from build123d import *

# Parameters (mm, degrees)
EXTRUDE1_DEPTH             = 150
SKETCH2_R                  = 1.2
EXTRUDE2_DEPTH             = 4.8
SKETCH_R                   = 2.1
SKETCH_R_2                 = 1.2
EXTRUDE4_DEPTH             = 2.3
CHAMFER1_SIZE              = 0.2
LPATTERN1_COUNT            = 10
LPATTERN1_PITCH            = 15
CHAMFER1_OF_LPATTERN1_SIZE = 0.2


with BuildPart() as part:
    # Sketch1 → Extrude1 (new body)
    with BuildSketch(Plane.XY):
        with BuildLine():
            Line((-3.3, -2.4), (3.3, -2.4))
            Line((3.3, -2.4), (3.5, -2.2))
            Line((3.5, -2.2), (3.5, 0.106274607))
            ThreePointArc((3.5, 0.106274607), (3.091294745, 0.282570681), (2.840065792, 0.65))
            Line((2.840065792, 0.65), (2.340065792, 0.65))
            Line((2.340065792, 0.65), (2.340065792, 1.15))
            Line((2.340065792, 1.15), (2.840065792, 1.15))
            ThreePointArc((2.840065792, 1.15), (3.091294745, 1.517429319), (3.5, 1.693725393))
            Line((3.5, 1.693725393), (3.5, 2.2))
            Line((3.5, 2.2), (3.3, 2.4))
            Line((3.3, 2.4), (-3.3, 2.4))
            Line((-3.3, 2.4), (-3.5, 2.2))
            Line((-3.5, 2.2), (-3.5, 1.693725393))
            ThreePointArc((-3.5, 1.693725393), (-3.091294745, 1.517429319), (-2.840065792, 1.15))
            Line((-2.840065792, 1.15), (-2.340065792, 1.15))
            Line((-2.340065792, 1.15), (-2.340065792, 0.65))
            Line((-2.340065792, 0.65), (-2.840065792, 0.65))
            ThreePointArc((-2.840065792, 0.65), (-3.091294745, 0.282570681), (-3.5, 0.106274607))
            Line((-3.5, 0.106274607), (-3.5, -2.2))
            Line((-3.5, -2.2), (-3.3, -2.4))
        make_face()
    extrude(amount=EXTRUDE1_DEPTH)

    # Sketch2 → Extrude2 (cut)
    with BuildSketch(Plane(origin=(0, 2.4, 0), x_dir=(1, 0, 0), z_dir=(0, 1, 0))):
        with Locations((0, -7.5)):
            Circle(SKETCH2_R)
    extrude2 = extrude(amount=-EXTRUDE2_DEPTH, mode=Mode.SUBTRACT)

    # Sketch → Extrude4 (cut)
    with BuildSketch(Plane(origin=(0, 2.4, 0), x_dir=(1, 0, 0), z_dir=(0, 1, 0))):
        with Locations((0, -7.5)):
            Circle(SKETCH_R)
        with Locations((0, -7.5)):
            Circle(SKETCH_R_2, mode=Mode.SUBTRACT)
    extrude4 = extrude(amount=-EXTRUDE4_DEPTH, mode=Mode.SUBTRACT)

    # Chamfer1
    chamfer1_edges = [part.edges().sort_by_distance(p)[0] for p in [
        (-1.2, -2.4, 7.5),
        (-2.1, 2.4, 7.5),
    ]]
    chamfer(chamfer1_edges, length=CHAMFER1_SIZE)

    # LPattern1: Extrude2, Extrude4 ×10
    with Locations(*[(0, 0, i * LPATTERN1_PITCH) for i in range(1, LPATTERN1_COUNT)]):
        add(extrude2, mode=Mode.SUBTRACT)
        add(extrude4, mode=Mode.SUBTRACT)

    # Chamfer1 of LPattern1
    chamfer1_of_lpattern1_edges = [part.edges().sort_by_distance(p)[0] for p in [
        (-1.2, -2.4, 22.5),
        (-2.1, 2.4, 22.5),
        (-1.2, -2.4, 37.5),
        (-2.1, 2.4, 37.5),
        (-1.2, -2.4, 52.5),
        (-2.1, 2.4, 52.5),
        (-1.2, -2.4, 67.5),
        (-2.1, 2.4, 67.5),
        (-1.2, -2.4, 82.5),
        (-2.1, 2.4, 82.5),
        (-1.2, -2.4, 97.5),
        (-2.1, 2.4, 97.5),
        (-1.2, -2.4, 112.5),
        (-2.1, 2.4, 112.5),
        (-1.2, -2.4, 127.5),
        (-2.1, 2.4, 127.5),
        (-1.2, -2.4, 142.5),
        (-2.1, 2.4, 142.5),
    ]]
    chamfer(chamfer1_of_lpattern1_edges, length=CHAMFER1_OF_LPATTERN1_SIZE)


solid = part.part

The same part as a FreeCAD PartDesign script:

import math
import FreeCAD as App
import Part
import Sketcher
Q = App.Units.Quantity


def edges_at(feature, points):
    """Names of the edges that pass closest to the given points."""
    edges = feature.Shape.Edges
    near = lambda p: min(range(len(edges)), key=lambda i: edges[i].distToShape(Part.Vertex(*p))[0])
    return sorted({f"Edge{near(p) + 1}" for p in points})

doc = App.newDocument("Part")
body = doc.addObject("PartDesign::Body", "Body")

# Sketch on XY plane
sketch1 = body.newObject("Sketcher::SketchObject", "Sketch")
sketch1.AttachmentSupport = (doc.getObject("XY_Plane"), [""])
sketch1.MapMode = "FlatFace"
sketch1.addGeometry([
    Part.LineSegment(App.Vector(-3.3, -2.4, 0), App.Vector(3.3, -2.4, 0)),  # 0
    Part.LineSegment(App.Vector(3.3, -2.4, 0), App.Vector(3.5, -2.2, 0)),  # 1
    Part.LineSegment(App.Vector(3.5, -2.2, 0), App.Vector(3.5, 0.11, 0)),  # 2
    Part.ArcOfCircle(Part.Circle(App.Vector(3.6, 0.9, 0), App.Vector(0, 0, 1), 0.8), math.radians(-162), math.radians(-97)),  # 3
    Part.LineSegment(App.Vector(2.84, 0.65, 0), App.Vector(2.34, 0.65, 0)),  # 4
    Part.LineSegment(App.Vector(2.34, 0.65, 0), App.Vector(2.34, 1.15, 0)),  # 5
    Part.LineSegment(App.Vector(2.34, 1.15, 0), App.Vector(2.84, 1.15, 0)),  # 6
    Part.ArcOfCircle(Part.Circle(App.Vector(3.6, 0.9, 0), App.Vector(0, 0, 1), 0.8), math.radians(97), math.radians(162)),  # 7
    Part.LineSegment(App.Vector(3.5, 1.69, 0), App.Vector(3.5, 2.2, 0)),  # 8
    Part.LineSegment(App.Vector(3.5, 2.2, 0), App.Vector(3.3, 2.4, 0)),  # 9
    Part.LineSegment(App.Vector(3.3, 2.4, 0), App.Vector(-3.3, 2.4, 0)),  # 10
    Part.LineSegment(App.Vector(-3.3, 2.4, 0), App.Vector(-3.5, 2.2, 0)),  # 11
    Part.LineSegment(App.Vector(-3.5, 2.2, 0), App.Vector(-3.5, 1.69, 0)),  # 12
    Part.ArcOfCircle(Part.Circle(App.Vector(-3.6, 0.9, 0), App.Vector(0, 0, 1), 0.8), math.radians(18), math.radians(83)),  # 13
    Part.LineSegment(App.Vector(-2.84, 1.15, 0), App.Vector(-2.34, 1.15, 0)),  # 14
    Part.LineSegment(App.Vector(-2.34, 1.15, 0), App.Vector(-2.34, 0.65, 0)),  # 15
    Part.LineSegment(App.Vector(-2.34, 0.65, 0), App.Vector(-2.84, 0.65, 0)),  # 16
    Part.ArcOfCircle(Part.Circle(App.Vector(-3.6, 0.9, 0), App.Vector(0, 0, 1), 0.8), math.radians(-83), math.radians(-18)),  # 17
    Part.LineSegment(App.Vector(-3.5, 0.11, 0), App.Vector(-3.5, -2.2, 0)),  # 18
    Part.LineSegment(App.Vector(-3.5, -2.2, 0), App.Vector(-3.3, -2.4, 0)),  # 19
], False)
sketch1.addConstraint([
    Sketcher.Constraint("Coincident", 0, 2, 1, 1),
    Sketcher.Constraint("Coincident", 1, 2, 2, 1),
    Sketcher.Constraint("Coincident", 2, 2, 3, 2),
    Sketcher.Constraint("Coincident", 3, 1, 4, 1),
    Sketcher.Constraint("Coincident", 4, 2, 5, 1),
    Sketcher.Constraint("Coincident", 5, 2, 6, 1),
    Sketcher.Constraint("Coincident", 6, 2, 7, 2),
    Sketcher.Constraint("Coincident", 7, 1, 8, 1),
    Sketcher.Constraint("Coincident", 8, 2, 9, 1),
    Sketcher.Constraint("Coincident", 9, 2, 10, 1),
    Sketcher.Constraint("Coincident", 10, 2, 11, 1),
    Sketcher.Constraint("Coincident", 11, 2, 12, 1),
    Sketcher.Constraint("Coincident", 12, 2, 13, 2),
    Sketcher.Constraint("Coincident", 13, 1, 14, 1),
    Sketcher.Constraint("Coincident", 14, 2, 15, 1),
    Sketcher.Constraint("Coincident", 15, 2, 16, 1),
    Sketcher.Constraint("Coincident", 16, 2, 17, 2),
    Sketcher.Constraint("Coincident", 17, 1, 18, 1),
    Sketcher.Constraint("Coincident", 18, 2, 19, 1),
    Sketcher.Constraint("Coincident", 19, 2, 0, 1),
    Sketcher.Constraint("Horizontal", 0),
    Sketcher.Constraint("Vertical", 2),
    Sketcher.Constraint("Horizontal", 4),
    Sketcher.Constraint("Vertical", 5),
    Sketcher.Constraint("Horizontal", 6),
    Sketcher.Constraint("Vertical", 8),
    Sketcher.Constraint("Horizontal", 10),
    Sketcher.Constraint("Vertical", 12),
    Sketcher.Constraint("Horizontal", 14),
    Sketcher.Constraint("Vertical", 15),
    Sketcher.Constraint("Horizontal", 16),
    Sketcher.Constraint("Vertical", 18),
    Sketcher.Constraint("Coincident", 7, 3, 3, 3),
    Sketcher.Constraint("Coincident", 17, 3, 13, 3),
    Sketcher.Constraint("Equal", 3, 7),
    Sketcher.Constraint("Equal", 7, 13),
    Sketcher.Constraint("Equal", 13, 17),
    Sketcher.Constraint("Symmetric", 0, 2, 10, 2, -1, 1),
    Sketcher.Constraint("Symmetric", 1, 2, 11, 2, -1, 1),
    Sketcher.Constraint("Symmetric", 8, 2, 18, 2, -1, 1),
    Sketcher.Constraint("Symmetric", 3, 3, 13, 3, -2),
    Sketcher.Constraint("Symmetric", 8, 2, 11, 2, -2),
    Sketcher.Constraint("Symmetric", 5, 2, 14, 2, -2),
    Sketcher.Constraint("Perpendicular", 1, 9),
    Sketcher.Constraint("Perpendicular", 11, 19),
    Sketcher.Constraint("Horizontal", 4, 2, 15, 2),
    Sketcher.Constraint("Vertical", 3, 1, 6, 2),
    Sketcher.Constraint("Vertical", 0, 2, 9, 2),
    Sketcher.Constraint("Equal", 16, 5),
    Sketcher.Constraint("Radius", 3, Q("0.8 mm")),
    Sketcher.Constraint("DistanceX", 0, 1, 0, 2, Q("6.6 mm")),
    Sketcher.Constraint("DistanceX", 4, 2, 4, 1, Q("0.5 mm")),
    Sketcher.Constraint("DistanceX", -1, 1, 3, 3, Q("3.6 mm")),
    Sketcher.Constraint("DistanceY", -1, 1, 3, 3, Q("0.9 mm")),
    Sketcher.Constraint("DistanceY", 0, 2, -1, 1, Q("2.4 mm")),
    Sketcher.Constraint("DistanceX", -1, 1, 1, 2, Q("3.5 mm")),
])
pad1 = body.newObject("PartDesign::Pad", "Pad")
pad1.Profile = sketch1
pad1.Length = 150

# Sketch on XZ plane
sketch2 = body.newObject("Sketcher::SketchObject", "Sketch001")
sketch2.AttachmentSupport = (doc.getObject("XZ_Plane"), [""])
sketch2.MapMode = "FlatFace"
sketch2.AttachmentOffset = App.Placement(App.Vector(0, 0, -2.4), App.Rotation())
sketch2.addGeometry(Part.Circle(App.Vector(0, 7.5, 0), App.Vector(0, 0, 1), 1.2), False)
sketch2.addConstraint([
    Sketcher.Constraint("PointOnObject", 0, 3, -2),
    Sketcher.Constraint("Diameter", 0, Q("2.4 mm")),
    Sketcher.Constraint("DistanceY", -1, 1, 0, 3, Q("7.5 mm")),
])
pocket1 = body.newObject("PartDesign::Pocket", "Pocket")
pocket1.Profile = sketch2
pocket1.Length = 4.8
pocket1.Reversed = True

# Sketch on XZ plane
sketch3 = body.newObject("Sketcher::SketchObject", "Sketch002")
sketch3.AttachmentSupport = (doc.getObject("XZ_Plane"), [""])
sketch3.MapMode = "FlatFace"
sketch3.AttachmentOffset = App.Placement(App.Vector(0, 0, -2.4), App.Rotation())
sketch3.addGeometry([
    Part.Circle(App.Vector(0, 7.5, 0), App.Vector(0, 0, 1), 2.1),
    Part.Circle(App.Vector(0, 7.5, 0), App.Vector(0, 0, 1), 1.2),
], False)
sketch3.addConstraint([
    Sketcher.Constraint("Coincident", 1, 3, 0, 3),
    Sketcher.Constraint("PointOnObject", 0, 3, -2),
    Sketcher.Constraint("Diameter", 0, Q("4.2 mm")),
    Sketcher.Constraint("Diameter", 1, Q("2.4 mm")),
    Sketcher.Constraint("DistanceY", -1, 1, 0, 3, Q("7.5 mm")),
])
pocket2 = body.newObject("PartDesign::Pocket", "Pocket001")
pocket2.Profile = sketch3
pocket2.Length = 2.3
pocket2.Reversed = True
doc.recompute()

chamfer = body.newObject("PartDesign::Chamfer", "Chamfer")
chamfer.Base = (pocket2, edges_at(pocket2, [(-1.2, -2.4, 7.5), (-2.1, 2.4, 7.5)]))
chamfer.Size = 0.2
doc.recompute()

linearpattern = body.newObject("PartDesign::LinearPattern", "LinearPattern")
linearpattern.Originals = [pocket1, pocket2]
linearpattern.Direction = (doc.getObject("Z_Axis"), [""])
linearpattern.Mode = "offset"
linearpattern.Offset = 15
linearpattern.Occurrences = 10
body.Tip = linearpattern
doc.recompute()

chamfer2 = body.newObject("PartDesign::Chamfer", "Chamfer001")
chamfer2.Base = (linearpattern, edges_at(linearpattern, [
    (-1.2, -2.4, 22.5),
    (-2.1, 2.4, 22.5),
    (-1.2, -2.4, 37.5),
    (-2.1, 2.4, 37.5),
    (-1.2, -2.4, 52.5),
    (-2.1, 2.4, 52.5),
    (-1.2, -2.4, 67.5),
    (-2.1, 2.4, 67.5),
    (-1.2, -2.4, 82.5),
    (-2.1, 2.4, 82.5),
    (-1.2, -2.4, 97.5),
    (-2.1, 2.4, 97.5),
    (-1.2, -2.4, 112.5),
    (-2.1, 2.4, 112.5),
    (-1.2, -2.4, 127.5),
    (-2.1, 2.4, 127.5),
    (-1.2, -2.4, 142.5),
    (-2.1, 2.4, 142.5),
]))
chamfer2.Size = 0.2

doc.recompute()
